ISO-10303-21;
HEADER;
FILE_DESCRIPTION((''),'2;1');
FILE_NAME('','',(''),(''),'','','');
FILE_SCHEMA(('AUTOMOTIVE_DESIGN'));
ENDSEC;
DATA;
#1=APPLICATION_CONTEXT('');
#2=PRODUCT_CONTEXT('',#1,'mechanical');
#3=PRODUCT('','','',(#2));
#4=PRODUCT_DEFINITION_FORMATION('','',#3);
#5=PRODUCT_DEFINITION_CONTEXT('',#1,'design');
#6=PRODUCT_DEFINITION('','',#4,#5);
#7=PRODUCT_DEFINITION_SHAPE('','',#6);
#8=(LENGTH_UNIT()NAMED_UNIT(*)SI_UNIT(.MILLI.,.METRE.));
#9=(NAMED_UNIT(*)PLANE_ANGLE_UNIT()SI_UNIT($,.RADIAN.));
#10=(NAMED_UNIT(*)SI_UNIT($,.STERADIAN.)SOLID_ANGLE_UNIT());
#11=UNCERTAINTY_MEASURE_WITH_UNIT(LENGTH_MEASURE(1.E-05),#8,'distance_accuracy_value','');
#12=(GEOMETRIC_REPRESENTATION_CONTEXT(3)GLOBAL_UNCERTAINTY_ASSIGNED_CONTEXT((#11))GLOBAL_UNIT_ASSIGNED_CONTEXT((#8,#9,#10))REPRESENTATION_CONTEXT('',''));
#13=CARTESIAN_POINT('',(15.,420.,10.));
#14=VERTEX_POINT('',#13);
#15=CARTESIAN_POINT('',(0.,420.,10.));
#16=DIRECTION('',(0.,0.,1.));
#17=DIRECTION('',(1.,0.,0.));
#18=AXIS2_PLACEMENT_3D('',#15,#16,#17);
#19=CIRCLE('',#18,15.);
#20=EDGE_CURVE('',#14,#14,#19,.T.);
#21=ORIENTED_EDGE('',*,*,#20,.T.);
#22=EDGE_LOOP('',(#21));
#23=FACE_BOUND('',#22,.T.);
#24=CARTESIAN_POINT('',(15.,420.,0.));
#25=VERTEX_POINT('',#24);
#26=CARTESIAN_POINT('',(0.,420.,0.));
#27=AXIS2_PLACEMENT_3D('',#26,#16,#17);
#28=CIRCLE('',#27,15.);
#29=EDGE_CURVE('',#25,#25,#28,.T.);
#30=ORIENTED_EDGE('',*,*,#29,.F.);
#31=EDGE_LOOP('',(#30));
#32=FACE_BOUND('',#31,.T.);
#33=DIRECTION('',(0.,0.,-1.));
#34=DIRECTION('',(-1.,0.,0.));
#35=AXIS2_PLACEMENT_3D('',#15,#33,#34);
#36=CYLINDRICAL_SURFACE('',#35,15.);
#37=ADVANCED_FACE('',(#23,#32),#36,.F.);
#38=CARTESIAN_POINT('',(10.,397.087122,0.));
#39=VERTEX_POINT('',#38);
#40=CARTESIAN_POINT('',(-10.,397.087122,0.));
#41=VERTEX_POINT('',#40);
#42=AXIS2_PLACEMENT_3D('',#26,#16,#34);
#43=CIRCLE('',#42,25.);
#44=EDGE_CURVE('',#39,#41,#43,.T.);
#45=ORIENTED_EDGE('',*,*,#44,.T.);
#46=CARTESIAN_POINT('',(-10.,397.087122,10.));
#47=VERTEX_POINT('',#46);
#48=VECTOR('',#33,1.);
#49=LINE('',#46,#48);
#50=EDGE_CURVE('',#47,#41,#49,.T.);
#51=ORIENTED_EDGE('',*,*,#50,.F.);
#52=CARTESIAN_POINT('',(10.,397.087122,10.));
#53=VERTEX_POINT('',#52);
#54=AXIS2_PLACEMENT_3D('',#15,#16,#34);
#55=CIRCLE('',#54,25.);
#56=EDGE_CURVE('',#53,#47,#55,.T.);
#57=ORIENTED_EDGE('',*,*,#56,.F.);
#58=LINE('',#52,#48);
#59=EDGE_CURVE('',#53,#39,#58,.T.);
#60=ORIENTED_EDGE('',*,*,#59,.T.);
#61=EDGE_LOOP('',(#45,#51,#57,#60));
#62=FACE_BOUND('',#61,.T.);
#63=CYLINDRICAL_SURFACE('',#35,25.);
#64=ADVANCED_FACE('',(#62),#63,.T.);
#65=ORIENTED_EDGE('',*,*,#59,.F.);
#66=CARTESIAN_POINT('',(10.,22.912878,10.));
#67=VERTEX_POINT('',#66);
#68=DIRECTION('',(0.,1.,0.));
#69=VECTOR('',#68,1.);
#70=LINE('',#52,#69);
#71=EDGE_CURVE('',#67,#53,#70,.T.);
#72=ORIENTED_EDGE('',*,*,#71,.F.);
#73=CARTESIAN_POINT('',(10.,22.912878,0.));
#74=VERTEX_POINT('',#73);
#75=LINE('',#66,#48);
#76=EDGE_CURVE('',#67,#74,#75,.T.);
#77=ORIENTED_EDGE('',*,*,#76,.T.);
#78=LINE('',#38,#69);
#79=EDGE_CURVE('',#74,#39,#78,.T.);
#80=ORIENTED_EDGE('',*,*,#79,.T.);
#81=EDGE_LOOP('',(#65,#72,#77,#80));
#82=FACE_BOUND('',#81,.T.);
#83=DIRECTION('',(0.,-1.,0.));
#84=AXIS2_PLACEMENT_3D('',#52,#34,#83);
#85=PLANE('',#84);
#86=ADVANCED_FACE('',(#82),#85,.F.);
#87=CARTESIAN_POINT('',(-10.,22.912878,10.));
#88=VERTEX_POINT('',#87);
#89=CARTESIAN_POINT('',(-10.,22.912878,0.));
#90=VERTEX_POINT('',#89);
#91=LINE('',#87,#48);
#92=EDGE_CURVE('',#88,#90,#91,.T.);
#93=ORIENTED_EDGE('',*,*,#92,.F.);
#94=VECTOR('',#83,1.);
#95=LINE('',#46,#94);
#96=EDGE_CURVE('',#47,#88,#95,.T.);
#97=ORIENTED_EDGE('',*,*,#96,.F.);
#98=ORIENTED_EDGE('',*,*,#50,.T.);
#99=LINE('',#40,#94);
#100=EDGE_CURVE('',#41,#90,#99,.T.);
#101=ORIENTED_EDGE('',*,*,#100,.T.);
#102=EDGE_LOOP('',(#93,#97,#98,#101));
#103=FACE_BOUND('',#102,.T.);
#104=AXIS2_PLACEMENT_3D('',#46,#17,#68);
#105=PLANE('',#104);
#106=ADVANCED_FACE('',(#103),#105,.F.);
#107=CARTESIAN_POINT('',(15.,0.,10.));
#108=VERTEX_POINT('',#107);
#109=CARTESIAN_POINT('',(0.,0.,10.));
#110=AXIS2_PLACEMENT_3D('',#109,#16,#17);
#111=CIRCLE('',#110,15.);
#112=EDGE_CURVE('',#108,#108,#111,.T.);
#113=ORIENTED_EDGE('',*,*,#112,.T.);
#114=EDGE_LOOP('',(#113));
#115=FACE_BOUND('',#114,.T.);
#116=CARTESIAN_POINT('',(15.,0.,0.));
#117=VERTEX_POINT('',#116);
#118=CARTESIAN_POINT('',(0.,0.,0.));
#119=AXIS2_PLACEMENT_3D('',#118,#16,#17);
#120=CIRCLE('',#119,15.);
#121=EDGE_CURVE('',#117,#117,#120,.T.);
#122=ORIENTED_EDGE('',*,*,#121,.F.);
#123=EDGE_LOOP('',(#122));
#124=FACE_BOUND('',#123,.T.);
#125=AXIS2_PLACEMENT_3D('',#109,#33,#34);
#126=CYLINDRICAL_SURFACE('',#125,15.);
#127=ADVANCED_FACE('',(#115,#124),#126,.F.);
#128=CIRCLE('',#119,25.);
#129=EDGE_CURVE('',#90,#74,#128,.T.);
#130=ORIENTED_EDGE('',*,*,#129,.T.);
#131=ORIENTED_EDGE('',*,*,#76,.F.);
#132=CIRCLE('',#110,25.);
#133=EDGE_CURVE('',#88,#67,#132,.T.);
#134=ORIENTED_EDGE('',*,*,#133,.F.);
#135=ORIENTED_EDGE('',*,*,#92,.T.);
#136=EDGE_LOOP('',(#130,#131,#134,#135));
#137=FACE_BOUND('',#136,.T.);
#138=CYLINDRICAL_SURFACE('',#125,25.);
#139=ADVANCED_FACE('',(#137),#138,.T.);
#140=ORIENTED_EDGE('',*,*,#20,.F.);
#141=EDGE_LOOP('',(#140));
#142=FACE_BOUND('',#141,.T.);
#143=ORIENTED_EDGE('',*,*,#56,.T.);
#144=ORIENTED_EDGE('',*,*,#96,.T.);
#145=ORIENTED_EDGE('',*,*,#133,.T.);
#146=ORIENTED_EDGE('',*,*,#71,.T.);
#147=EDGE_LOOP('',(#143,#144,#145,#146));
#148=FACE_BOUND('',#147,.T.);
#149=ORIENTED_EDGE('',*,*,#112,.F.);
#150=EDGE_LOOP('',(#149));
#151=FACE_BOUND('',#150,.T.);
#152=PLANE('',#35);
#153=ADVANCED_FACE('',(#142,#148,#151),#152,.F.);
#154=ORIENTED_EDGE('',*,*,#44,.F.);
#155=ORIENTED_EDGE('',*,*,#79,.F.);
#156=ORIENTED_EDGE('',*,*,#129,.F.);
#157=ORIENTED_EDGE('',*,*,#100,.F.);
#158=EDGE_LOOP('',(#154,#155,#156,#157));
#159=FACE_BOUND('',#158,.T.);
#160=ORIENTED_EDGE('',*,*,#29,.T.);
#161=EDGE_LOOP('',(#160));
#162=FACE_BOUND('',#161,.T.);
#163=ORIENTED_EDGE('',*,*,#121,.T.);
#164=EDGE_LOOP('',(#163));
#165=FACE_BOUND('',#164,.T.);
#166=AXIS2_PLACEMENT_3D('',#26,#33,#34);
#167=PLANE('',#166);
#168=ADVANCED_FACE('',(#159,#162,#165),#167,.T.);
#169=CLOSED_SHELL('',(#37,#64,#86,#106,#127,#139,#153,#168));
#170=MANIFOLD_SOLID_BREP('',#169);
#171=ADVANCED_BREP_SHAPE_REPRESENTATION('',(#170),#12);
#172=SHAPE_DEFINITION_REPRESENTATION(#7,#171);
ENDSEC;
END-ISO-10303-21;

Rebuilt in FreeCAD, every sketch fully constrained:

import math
import FreeCAD as App
import Part
import Sketcher

V = App.Vector
Q = App.Units.Quantity

doc = App.newDocument("Part")
body = doc.addObject("PartDesign::Body", "Body")

sketch1 = doc.addObject("Sketcher::SketchObject", "Sketch")
body.addObject(sketch1)
sketch1.AttachmentSupport = (doc.XY_Plane, [""])
sketch1.MapMode = "FlatFace"
sketch1.addGeometry(Part.LineSegment(V(-10, 397, 0), V(-10, 23, 0)), False)
sketch1.addGeometry(Part.ArcOfCircle(Part.Circle(V(0, 0, 0), V(0, 0, 1), 25), math.radians(114), math.radians(426)), False)
sketch1.addGeometry(Part.LineSegment(V(10, 23, 0), V(10, 397, 0)), False)
sketch1.addGeometry(Part.ArcOfCircle(Part.Circle(V(0, 420, 0), V(0, 0, 1), 25), math.radians(-66), math.radians(246)), False)
sketch1.addGeometry(Part.Circle(V(0, 0, 0), V(0, 0, 1), 15), False)
sketch1.addGeometry(Part.Circle(V(0, 420, 0), V(0, 0, 1), 15), False)
sketch1.addConstraint(Sketcher.Constraint("Coincident", 0, 2, 1, 1))
sketch1.addConstraint(Sketcher.Constraint("Coincident", 1, 2, 2, 1))
sketch1.addConstraint(Sketcher.Constraint("Coincident", 2, 2, 3, 1))
sketch1.addConstraint(Sketcher.Constraint("Coincident", 3, 2, 0, 1))
sketch1.addConstraint(Sketcher.Constraint("Vertical", 0))
sketch1.addConstraint(Sketcher.Constraint("Vertical", 2))
sketch1.addConstraint(Sketcher.Constraint("Coincident", 1, 3, -1, 1))
sketch1.addConstraint(Sketcher.Constraint("Coincident", 4, 3, -1, 1))
sketch1.addConstraint(Sketcher.Constraint("Coincident", 5, 3, 3, 3))
sketch1.addConstraint(Sketcher.Constraint("Equal", 1, 3))
sketch1.addConstraint(Sketcher.Constraint("Equal", 4, 5))
sketch1.addConstraint(Sketcher.Constraint("Symmetric", 2, 2, 3, 2, -2))
sketch1.addConstraint(Sketcher.Constraint("Diameter", 4, Q("30 mm")))
sketch1.addConstraint(Sketcher.Constraint("Radius", 1, Q("25 mm")))
sketch1.addConstraint(Sketcher.Constraint("DistanceY", -1, 1, 3, 3, Q("420 mm")))
sketch1.addConstraint(Sketcher.Constraint("DistanceX", 0, 2, -1, 1, Q("10 mm")))
pad1 = doc.addObject("PartDesign::Pad", "Pad")
body.addObject(pad1)
pad1.Profile = sketch1
pad1.Length = 10

doc.recompute()
